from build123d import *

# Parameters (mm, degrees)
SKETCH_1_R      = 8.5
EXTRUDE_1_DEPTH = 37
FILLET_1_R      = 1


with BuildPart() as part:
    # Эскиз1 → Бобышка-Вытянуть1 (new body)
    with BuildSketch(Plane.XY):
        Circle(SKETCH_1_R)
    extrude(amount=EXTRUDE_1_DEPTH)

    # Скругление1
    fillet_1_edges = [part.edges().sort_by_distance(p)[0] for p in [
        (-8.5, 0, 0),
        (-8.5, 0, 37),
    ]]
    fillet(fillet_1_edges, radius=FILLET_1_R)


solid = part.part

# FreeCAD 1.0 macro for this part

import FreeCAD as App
import Part
import Sketcher

V = App.Vector


def edges_at(feature, points):
    """Names of the edges that pass closest to the given points."""
    edges = feature.Shape.Edges
    near = lambda p: min(range(len(edges)), key=lambda i: edges[i].distToShape(Part.Vertex(*p))[0])
    return sorted({f"Edge{near(p) + 1}" for p in points})

doc = App.newDocument("Part")
body = doc.addObject("PartDesign::Body", "Body")

sketch1 = body.newObject("Sketcher::SketchObject", "Sketch")
sketch1.AttachmentSupport = (doc.getObject("XY_Plane"), [""])
sketch1.MapMode = "FlatFace"
sketch1.addGeometry(Part.Circle(V(0, 0, 0), V(0, 0, 1), 8), False)
sketch1.addConstraint([
    Sketcher.Constraint("Coincident", 0, 3, -1, 1),
    Sketcher.Constraint("Diameter", 0, 17.0),
])
pad1 = body.newObject("PartDesign::Pad", "Pad")
pad1.Profile = sketch1
pad1.Length = 37
doc.recompute()

fillet = body.newObject("PartDesign::Fillet", "Fillet")
fillet.Base = (pad1, edges_at(pad1, [(-8.5, 0, 0), (-8.5, 0, 37)]))
fillet.Radius = 1

doc.recompute()
